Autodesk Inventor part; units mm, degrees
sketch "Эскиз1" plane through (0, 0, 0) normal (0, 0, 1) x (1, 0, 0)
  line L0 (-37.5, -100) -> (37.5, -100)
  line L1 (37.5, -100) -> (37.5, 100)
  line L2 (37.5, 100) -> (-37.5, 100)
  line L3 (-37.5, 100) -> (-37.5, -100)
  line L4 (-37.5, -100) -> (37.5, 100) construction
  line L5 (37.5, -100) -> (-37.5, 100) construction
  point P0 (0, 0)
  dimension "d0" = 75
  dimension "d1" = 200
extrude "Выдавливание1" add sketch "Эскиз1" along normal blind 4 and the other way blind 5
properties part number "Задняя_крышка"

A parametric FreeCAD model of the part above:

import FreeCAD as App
import Part
import Sketcher
from FreeCAD import Vector


def add_polygon(sketch, points):
    """Adds a closed chain of lines whose ends are joined by coincident constraints."""
    first, n = sketch.GeometryCount, len(points)
    for a, b in zip(points, points[1:] + points[:1]):
        sketch.addGeometry(Part.LineSegment(App.Vector(*a, 0), App.Vector(*b, 0)), False)
    for i in range(n):
        sketch.addConstraint(Sketcher.Constraint("Coincident", first + i, 2, first + (i + 1) % n, 1))

doc = App.newDocument("Part")
params = doc.addObject("Spreadsheet::Sheet", "Params")
for row, (alias, value) in enumerate([
    ("sketch1_width", "75 mm"),
    ("sketch1_height", "200 mm"),
    ("pad1_length", "4 mm"),
    ("pad1_length2", "5 mm"),
], start=1):
    params.set(f"A{row}", alias)
    params.set(f"B{row}", "=" + value)
    params.setAlias(f"B{row}", alias)

body = doc.addObject("PartDesign::Body", "Body")

# Sketch on XY plane
sketch1 = doc.addObject("Sketcher::SketchObject", "Sketch")
body.addObject(sketch1)
sketch1.AttachmentSupport = (doc.XY_Plane, [""])
sketch1.MapMode = "FlatFace"
add_polygon(sketch1, [(-38, 100), (-38, -100), (38, -100), (38, 100)])  # lines 0-3
sketch1.addConstraint([
    Sketcher.Constraint("Vertical", 0),
    Sketcher.Constraint("Horizontal", 1),
    Sketcher.Constraint("Vertical", 2),
    Sketcher.Constraint("Horizontal", 3),
    Sketcher.Constraint("Symmetric", 0, 2, 2, 2, -1, 1),
    Sketcher.Constraint("DistanceX", 1, 1, 1, 2, 75.0),
    Sketcher.Constraint("DistanceY", 0, 2, 0, 1, 200.0),
])
sketch1.setExpression("Constraints[9]", "Params.sketch1_width")
sketch1.setExpression("Constraints[10]", "Params.sketch1_height")
pad1 = doc.addObject("PartDesign::Pad", "Pad")
body.addObject(pad1)
pad1.Profile = sketch1
pad1.Type = "TwoLengths"
pad1.setExpression("Length", "Params.pad1_length")
pad1.setExpression("Length2", "Params.pad1_length2")

doc.recompute()
